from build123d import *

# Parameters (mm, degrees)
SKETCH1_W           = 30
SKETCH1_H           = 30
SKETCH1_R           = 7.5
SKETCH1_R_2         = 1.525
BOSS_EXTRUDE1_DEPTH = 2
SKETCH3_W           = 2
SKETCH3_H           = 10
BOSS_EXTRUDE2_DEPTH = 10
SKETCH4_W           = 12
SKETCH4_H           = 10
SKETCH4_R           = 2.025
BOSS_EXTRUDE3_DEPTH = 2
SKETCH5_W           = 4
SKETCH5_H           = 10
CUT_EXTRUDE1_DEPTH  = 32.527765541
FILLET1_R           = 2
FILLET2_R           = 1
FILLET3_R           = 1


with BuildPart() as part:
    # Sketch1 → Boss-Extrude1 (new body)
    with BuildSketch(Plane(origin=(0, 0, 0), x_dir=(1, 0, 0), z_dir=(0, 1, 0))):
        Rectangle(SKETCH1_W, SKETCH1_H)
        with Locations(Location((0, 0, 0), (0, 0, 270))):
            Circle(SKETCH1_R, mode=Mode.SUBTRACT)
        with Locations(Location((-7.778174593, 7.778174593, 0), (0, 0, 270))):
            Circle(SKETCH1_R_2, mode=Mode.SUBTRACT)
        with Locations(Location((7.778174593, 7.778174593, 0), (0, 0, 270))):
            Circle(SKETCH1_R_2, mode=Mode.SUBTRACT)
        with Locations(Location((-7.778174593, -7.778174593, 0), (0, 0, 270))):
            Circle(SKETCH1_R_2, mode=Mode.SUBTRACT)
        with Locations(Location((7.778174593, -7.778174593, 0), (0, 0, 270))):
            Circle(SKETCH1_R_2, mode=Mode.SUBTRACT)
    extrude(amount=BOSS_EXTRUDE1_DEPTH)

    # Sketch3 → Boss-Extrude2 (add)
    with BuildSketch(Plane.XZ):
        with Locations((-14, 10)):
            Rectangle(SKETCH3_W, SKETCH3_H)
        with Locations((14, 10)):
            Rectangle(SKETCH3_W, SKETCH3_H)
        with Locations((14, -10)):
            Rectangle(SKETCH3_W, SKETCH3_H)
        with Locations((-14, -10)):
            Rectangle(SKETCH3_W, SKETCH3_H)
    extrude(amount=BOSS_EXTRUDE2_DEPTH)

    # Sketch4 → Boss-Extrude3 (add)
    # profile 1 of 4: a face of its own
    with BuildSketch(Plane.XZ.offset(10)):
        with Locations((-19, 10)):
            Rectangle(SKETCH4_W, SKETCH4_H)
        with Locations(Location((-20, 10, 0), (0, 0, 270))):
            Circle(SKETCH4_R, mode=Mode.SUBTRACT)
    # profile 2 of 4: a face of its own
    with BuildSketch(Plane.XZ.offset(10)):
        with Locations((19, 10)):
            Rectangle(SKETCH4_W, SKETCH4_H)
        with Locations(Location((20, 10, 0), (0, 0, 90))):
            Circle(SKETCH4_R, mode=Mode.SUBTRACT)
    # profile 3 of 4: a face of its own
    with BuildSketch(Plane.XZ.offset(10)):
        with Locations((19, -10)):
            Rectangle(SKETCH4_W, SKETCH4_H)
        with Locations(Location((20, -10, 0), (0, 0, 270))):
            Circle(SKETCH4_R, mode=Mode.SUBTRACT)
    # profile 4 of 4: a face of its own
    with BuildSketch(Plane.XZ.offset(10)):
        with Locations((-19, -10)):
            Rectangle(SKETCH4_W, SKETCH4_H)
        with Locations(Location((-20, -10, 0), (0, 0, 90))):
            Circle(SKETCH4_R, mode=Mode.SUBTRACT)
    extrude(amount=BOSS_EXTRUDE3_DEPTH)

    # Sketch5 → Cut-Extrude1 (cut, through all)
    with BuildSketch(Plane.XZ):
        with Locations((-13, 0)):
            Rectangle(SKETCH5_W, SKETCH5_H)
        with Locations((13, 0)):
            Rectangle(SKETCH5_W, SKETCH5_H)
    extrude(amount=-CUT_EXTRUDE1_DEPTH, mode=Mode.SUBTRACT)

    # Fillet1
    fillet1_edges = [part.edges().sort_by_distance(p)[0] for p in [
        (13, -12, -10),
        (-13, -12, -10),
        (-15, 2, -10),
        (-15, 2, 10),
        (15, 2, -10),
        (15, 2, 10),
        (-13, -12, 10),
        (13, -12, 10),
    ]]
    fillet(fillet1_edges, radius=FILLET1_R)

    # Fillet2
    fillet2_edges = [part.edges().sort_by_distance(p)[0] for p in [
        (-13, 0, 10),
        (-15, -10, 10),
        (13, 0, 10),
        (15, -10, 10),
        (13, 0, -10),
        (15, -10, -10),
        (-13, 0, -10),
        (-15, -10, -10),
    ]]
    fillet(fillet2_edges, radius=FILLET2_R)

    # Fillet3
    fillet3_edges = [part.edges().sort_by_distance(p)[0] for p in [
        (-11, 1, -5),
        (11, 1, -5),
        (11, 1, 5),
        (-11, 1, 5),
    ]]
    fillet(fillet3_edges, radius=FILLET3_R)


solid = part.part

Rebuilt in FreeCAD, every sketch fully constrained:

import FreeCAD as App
import Part
import Sketcher
Q = App.Units.Quantity


def edges_at(feature, points):
    """Names of the edges that pass closest to the given points."""
    edges = feature.Shape.Edges
    near = lambda p: min(range(len(edges)), key=lambda i: edges[i].distToShape(Part.Vertex(*p))[0])
    return sorted({f"Edge{near(p) + 1}" for p in points})

doc = App.newDocument("Part")
params = doc.addObject("Spreadsheet::Sheet", "Params")
for row, (alias, value) in enumerate([
    ("sketch1_diameter", "15 mm"),
    ("sketch1_diameter2", "3.05 mm"),
    ("sketch1_width", "30 mm"),
    ("pad1_length", "2 mm"),
    ("sketch2_width", "2 mm"),
    ("sketch2_height", "10 mm"),
    ("pad2_length", "10 mm"),
    ("sketch3_diameter", "4.05 mm"),
    ("sketch3_width", "12 mm"),
    ("sketch3_height", "10 mm"),
    ("pad3_length", "2 mm"),
    ("sketch4_width", "4 mm"),
    ("sketch4_height", "10 mm"),
    ("fillet_radius", "2 mm"),
    ("fillet2_radius", "1 mm"),
    ("fillet3_radius", "1 mm"),
], start=1):
    params.set(f"A{row}", alias)
    params.set(f"B{row}", "=" + value)
    params.setAlias(f"B{row}", alias)

body = doc.addObject("PartDesign::Body", "Body")

# Sketch on XZ plane
sketch1 = doc.addObject("Sketcher::SketchObject", "Sketch")
body.addObject(sketch1)
sketch1.AttachmentSupport = (doc.XZ_Plane, [""])
sketch1.MapMode = "FlatFace"
sketch1.addGeometry([
    Part.LineSegment(App.Vector(-15, -15, 0), App.Vector(-15, 15, 0)),  # 0
    Part.LineSegment(App.Vector(-15, 15, 0), App.Vector(15, 15, 0)),  # 1
    Part.LineSegment(App.Vector(15, 15, 0), App.Vector(15, -15, 0)),  # 2
    Part.LineSegment(App.Vector(15, -15, 0), App.Vector(-15, -15, 0)),  # 3
    Part.Circle(App.Vector(-7.778175, 7.778175, 0), App.Vector(0, 0, 1), 1.525),  # 4
    Part.Circle(App.Vector(7.778175, 7.778175, 0), App.Vector(0, 0, 1), 1.525),  # 5
    Part.Circle(App.Vector(-7.778175, -7.778175, 0), App.Vector(0, 0, 1), 1.525),  # 6
    Part.Circle(App.Vector(0, 0, 0), App.Vector(0, 0, 1), 7.5),  # 7
    Part.Circle(App.Vector(7.778175, -7.778175, 0), App.Vector(0, 0, 1), 1.525),  # 8
], False)
sketch1.addConstraint([
    Sketcher.Constraint("Coincident", 0, 2, 1, 1),
    Sketcher.Constraint("Coincident", 1, 2, 2, 1),
    Sketcher.Constraint("Coincident", 2, 2, 3, 1),
    Sketcher.Constraint("Coincident", 3, 2, 0, 1),
    Sketcher.Constraint("Vertical", 0),
    Sketcher.Constraint("Horizontal", 1),
    Sketcher.Constraint("Vertical", 2),
    Sketcher.Constraint("Horizontal", 3),
    Sketcher.Constraint("Coincident", 7, 3, -1, 1),
    Sketcher.Constraint("Equal", 4, 5),
    Sketcher.Constraint("Equal", 5, 6),
    Sketcher.Constraint("Equal", 6, 8),
    Sketcher.Constraint("Symmetric", 5, 3, 6, 3, -1, 1),
    Sketcher.Constraint("Symmetric", 4, 3, 8, 3, -1, 1),
    Sketcher.Constraint("Symmetric", 0, 2, 2, 2, -1, 1),
    Sketcher.Constraint("Symmetric", 4, 3, 5, 3, -2),
    Sketcher.Constraint("Equal", 3, 0),
    Sketcher.Constraint("Diameter", 7, Q("15 mm")),
    Sketcher.Constraint("Diameter", 4, Q("3.05 mm")),
    Sketcher.Constraint("DistanceX", 1, 1, 1, 2, Q("30 mm")),
    Sketcher.Constraint("DistanceX", 4, 3, 5, 3, Q("15.556349 mm")),
    Sketcher.Constraint("DistanceY", 6, 3, 4, 3, Q("15.556349 mm")),
])
sketch1.setExpression("Constraints[17]", "Params.sketch1_diameter")
sketch1.setExpression("Constraints[18]", "Params.sketch1_diameter2")
sketch1.setExpression("Constraints[19]", "Params.sketch1_width")
pad1 = doc.addObject("PartDesign::Pad", "Pad")
body.addObject(pad1)
pad1.Profile = sketch1
pad1.setExpression("Length", "Params.pad1_length")
pad1.Reversed = True

# Sketch on XZ plane
sketch2 = doc.addObject("Sketcher::SketchObject", "Sketch001")
body.addObject(sketch2)
sketch2.AttachmentSupport = (doc.XZ_Plane, [""])
sketch2.MapMode = "FlatFace"
sketch2.addGeometry([
    Part.LineSegment(App.Vector(-15, 15, 0), App.Vector(-15, 5, 0)),  # 0
    Part.LineSegment(App.Vector(-15, 5, 0), App.Vector(-13, 5, 0)),  # 1
    Part.LineSegment(App.Vector(-13, 5, 0), App.Vector(-13, 15, 0)),  # 2
    Part.LineSegment(App.Vector(-13, 15, 0), App.Vector(-15, 15, 0)),  # 3
    Part.LineSegment(App.Vector(13, 15, 0), App.Vector(13, 5, 0)),  # 4
    Part.LineSegment(App.Vector(13, 5, 0), App.Vector(15, 5, 0)),  # 5
    Part.LineSegment(App.Vector(15, 5, 0), App.Vector(15, 15, 0)),  # 6
    Part.LineSegment(App.Vector(15, 15, 0), App.Vector(13, 15, 0)),  # 7
    Part.LineSegment(App.Vector(13, -5, 0), App.Vector(13, -15, 0)),  # 8
    Part.LineSegment(App.Vector(13, -15, 0), App.Vector(15, -15, 0)),  # 9
    Part.LineSegment(App.Vector(15, -15, 0), App.Vector(15, -5, 0)),  # 10
    Part.LineSegment(App.Vector(15, -5, 0), App.Vector(13, -5, 0)),  # 11
    Part.LineSegment(App.Vector(-15, -5, 0), App.Vector(-15, -15, 0)),  # 12
    Part.LineSegment(App.Vector(-15, -15, 0), App.Vector(-13, -15, 0)),  # 13
    Part.LineSegment(App.Vector(-13, -15, 0), App.Vector(-13, -5, 0)),  # 14
    Part.LineSegment(App.Vector(-13, -5, 0), App.Vector(-15, -5, 0)),  # 15
], False)
sketch2.addConstraint([
    Sketcher.Constraint("Coincident", 0, 2, 1, 1),
    Sketcher.Constraint("Coincident", 1, 2, 2, 1),
    Sketcher.Constraint("Coincident", 2, 2, 3, 1),
    Sketcher.Constraint("Coincident", 3, 2, 0, 1),
    Sketcher.Constraint("Coincident", 4, 2, 5, 1),
    Sketcher.Constraint("Coincident", 5, 2, 6, 1),
    Sketcher.Constraint("Coincident", 6, 2, 7, 1),
    Sketcher.Constraint("Coincident", 7, 2, 4, 1),
    Sketcher.Constraint("Coincident", 8, 2, 9, 1),
    Sketcher.Constraint("Coincident", 9, 2, 10, 1),
    Sketcher.Constraint("Coincident", 10, 2, 11, 1),
    Sketcher.Constraint("Coincident", 11, 2, 8, 1),
    Sketcher.Constraint("Coincident", 12, 2, 13, 1),
    Sketcher.Constraint("Coincident", 13, 2, 14, 1),
    Sketcher.Constraint("Coincident", 14, 2, 15, 1),
    Sketcher.Constraint("Coincident", 15, 2, 12, 1),
    Sketcher.Constraint("Vertical", 0),
    Sketcher.Constraint("Horizontal", 1),
    Sketcher.Constraint("Vertical", 2),
    Sketcher.Constraint("Horizontal", 3),
    Sketcher.Constraint("Vertical", 4),
    Sketcher.Constraint("Horizontal", 5),
    Sketcher.Constraint("Vertical", 6),
    Sketcher.Constraint("Horizontal", 7),
    Sketcher.Constraint("Vertical", 8),
    Sketcher.Constraint("Horizontal", 9),
    Sketcher.Constraint("Vertical", 10),
    Sketcher.Constraint("Horizontal", 11),
    Sketcher.Constraint("Vertical", 12),
    Sketcher.Constraint("Horizontal", 13),
    Sketcher.Constraint("Vertical", 14),
    Sketcher.Constraint("Horizontal", 15),
    Sketcher.Constraint("Symmetric", 2, 2, 8, 2, -1, 1),
    Sketcher.Constraint("Symmetric", 0, 2, 10, 2, -1, 1),
    Sketcher.Constraint("Symmetric", 6, 2, 12, 2, -1, 1),
    Sketcher.Constraint("Symmetric", 4, 2, 14, 2, -1, 1),
    Sketcher.Constraint("Symmetric", 1, 2, 4, 2, -2),
    Sketcher.Constraint("Symmetric", 3, 2, 6, 2, -2),
    Sketcher.Constraint("DistanceX", 1, 1, 1, 2, Q("2 mm")),
    Sketcher.Constraint("DistanceY", 0, 2, 0, 1, Q("10 mm")),
    Sketcher.Constraint("DistanceX", 0, 2, -1, 1, Q("15 mm")),
    Sketcher.Constraint("DistanceY", -1, 1, 0, 2, Q("5 mm")),
])
sketch2.setExpression("Constraints[38]", "Params.sketch2_width")
sketch2.setExpression("Constraints[39]", "Params.sketch2_height")
pad2 = doc.addObject("PartDesign::Pad", "Pad001")
body.addObject(pad2)
pad2.Profile = sketch2
pad2.setExpression("Length", "Params.pad2_length")

# Sketch on XZ plane
sketch3 = doc.addObject("Sketcher::SketchObject", "Sketch002")
body.addObject(sketch3)
sketch3.AttachmentSupport = (doc.XZ_Plane, [""])
sketch3.MapMode = "FlatFace"
sketch3.AttachmentOffset = App.Placement(App.Vector(0, 0, 10), App.Rotation())
sketch3.addGeometry([
    Part.LineSegment(App.Vector(-25, 15, 0), App.Vector(-25, 5, 0)),  # 0
    Part.LineSegment(App.Vector(-25, 5, 0), App.Vector(-13, 5, 0)),  # 1
    Part.LineSegment(App.Vector(-13, 5, 0), App.Vector(-13, 15, 0)),  # 2
    Part.LineSegment(App.Vector(-13, 15, 0), App.Vector(-25, 15, 0)),  # 3
    Part.Circle(App.Vector(-20, 10, 0), App.Vector(0, 0, 1), 2.025),  # 4
    Part.LineSegment(App.Vector(13, 15, 0), App.Vector(13, 5, 0)),  # 5
    Part.LineSegment(App.Vector(13, 5, 0), App.Vector(25, 5, 0)),  # 6
    Part.LineSegment(App.Vector(25, 5, 0), App.Vector(25, 15, 0)),  # 7
    Part.LineSegment(App.Vector(25, 15, 0), App.Vector(13, 15, 0)),  # 8
    Part.Circle(App.Vector(20, 10, 0), App.Vector(0, 0, 1), 2.025),  # 9
    Part.LineSegment(App.Vector(13, -5, 0), App.Vector(13, -15, 0)),  # 10
    Part.LineSegment(App.Vector(13, -15, 0), App.Vector(25, -15, 0)),  # 11
    Part.LineSegment(App.Vector(25, -15, 0), App.Vector(25, -5, 0)),  # 12
    Part.LineSegment(App.Vector(25, -5, 0), App.Vector(13, -5, 0)),  # 13
    Part.Circle(App.Vector(20, -10, 0), App.Vector(0, 0, 1), 2.025),  # 14
    Part.LineSegment(App.Vector(-25, -5, 0), App.Vector(-25, -15, 0)),  # 15
    Part.LineSegment(App.Vector(-25, -15, 0), App.Vector(-13, -15, 0)),  # 16
    Part.LineSegment(App.Vector(-13, -15, 0), App.Vector(-13, -5, 0)),  # 17
    Part.LineSegment(App.Vector(-13, -5, 0), App.Vector(-25, -5, 0)),  # 18
    Part.Circle(App.Vector(-20, -10, 0), App.Vector(0, 0, 1), 2.025),  # 19
], False)
sketch3.addConstraint([
    Sketcher.Constraint("Coincident", 0, 2, 1, 1),
    Sketcher.Constraint("Coincident", 1, 2, 2, 1),
    Sketcher.Constraint("Coincident", 2, 2, 3, 1),
    Sketcher.Constraint("Coincident", 3, 2, 0, 1),
    Sketcher.Constraint("Coincident", 5, 2, 6, 1),
    Sketcher.Constraint("Coincident", 6, 2, 7, 1),
    Sketcher.Constraint("Coincident", 7, 2, 8, 1),
    Sketcher.Constraint("Coincident", 8, 2, 5, 1),
    Sketcher.Constraint("Coincident", 10, 2, 11, 1),
    Sketcher.Constraint("Coincident", 11, 2, 12, 1),
    Sketcher.Constraint("Coincident", 12, 2, 13, 1),
    Sketcher.Constraint("Coincident", 13, 2, 10, 1),
    Sketcher.Constraint("Coincident", 15, 2, 16, 1),
    Sketcher.Constraint("Coincident", 16, 2, 17, 1),
    Sketcher.Constraint("Coincident", 17, 2, 18, 1),
    Sketcher.Constraint("Coincident", 18, 2, 15, 1),
    Sketcher.Constraint("Vertical", 0),
    Sketcher.Constraint("Horizontal", 1),
    Sketcher.Constraint("Vertical", 2),
    Sketcher.Constraint("Horizontal", 3),
    Sketcher.Constraint("Vertical", 5),
    Sketcher.Constraint("Horizontal", 6),
    Sketcher.Constraint("Vertical", 7),
    Sketcher.Constraint("Horizontal", 8),
    Sketcher.Constraint("Vertical", 10),
    Sketcher.Constraint("Horizontal", 11),
    Sketcher.Constraint("Vertical", 12),
    Sketcher.Constraint("Horizontal", 13),
    Sketcher.Constraint("Vertical", 15),
    Sketcher.Constraint("Horizontal", 16),
    Sketcher.Constraint("Vertical", 17),
    Sketcher.Constraint("Horizontal", 18),
    Sketcher.Constraint("Equal", 4, 9),
    Sketcher.Constraint("Equal", 9, 14),
    Sketcher.Constraint("Equal", 14, 19),
    Sketcher.Constraint("Symmetric", 4, 3, 14, 3, -1, 1),
    Sketcher.Constraint("Symmetric", 9, 3, 19, 3, -1, 1),
    Sketcher.Constraint("Symmetric", 2, 2, 10, 2, -1, 1),
    Sketcher.Constraint("Symmetric", 0, 2, 12, 2, -1, 1),
    Sketcher.Constraint("Symmetric", 7, 2, 15, 2, -1, 1),
    Sketcher.Constraint("Symmetric", 5, 2, 17, 2, -1, 1),
    Sketcher.Constraint("Symmetric", 4, 3, 9, 3, -2),
    Sketcher.Constraint("Symmetric", 1, 2, 5, 2, -2),
    Sketcher.Constraint("Symmetric", 3, 2, 7, 2, -2),
    Sketcher.Constraint("Diameter", 4, Q("4.05 mm")),
    Sketcher.Constraint("DistanceX", 1, 1, 1, 2, Q("12 mm")),
    Sketcher.Constraint("DistanceY", 0, 2, 0, 1, Q("10 mm")),
    Sketcher.Constraint("DistanceX", 4, 3, -1, 1, Q("20 mm")),
    Sketcher.Constraint("DistanceY", -1, 1, 4, 3, Q("10 mm")),
    Sketcher.Constraint("DistanceX", 0, 2, -1, 1, Q("25 mm")),
    Sketcher.Constraint("DistanceY", -1, 1, 0, 2, Q("5 mm")),
])
sketch3.setExpression("Constraints[44]", "Params.sketch3_diameter")
sketch3.setExpression("Constraints[45]", "Params.sketch3_width")
sketch3.setExpression("Constraints[46]", "Params.sketch3_height")
pad3 = doc.addObject("PartDesign::Pad", "Pad002")
body.addObject(pad3)
pad3.Profile = sketch3
pad3.setExpression("Length", "Params.pad3_length")

# Sketch on XZ plane
sketch4 = doc.addObject("Sketcher::SketchObject", "Sketch003")
body.addObject(sketch4)
sketch4.AttachmentSupport = (doc.XZ_Plane, [""])
sketch4.MapMode = "FlatFace"
sketch4.addGeometry([
    Part.LineSegment(App.Vector(-15, 5, 0), App.Vector(-15, -5, 0)),  # 0
    Part.LineSegment(App.Vector(-15, -5, 0), App.Vector(-11, -5, 0)),  # 1
    Part.LineSegment(App.Vector(-11, -5, 0), App.Vector(-11, 5, 0)),  # 2
    Part.LineSegment(App.Vector(-11, 5, 0), App.Vector(-15, 5, 0)),  # 3
    Part.LineSegment(App.Vector(11, 5, 0), App.Vector(11, -5, 0)),  # 4
    Part.LineSegment(App.Vector(11, -5, 0), App.Vector(15, -5, 0)),  # 5
    Part.LineSegment(App.Vector(15, -5, 0), App.Vector(15, 5, 0)),  # 6
    Part.LineSegment(App.Vector(15, 5, 0), App.Vector(11, 5, 0)),  # 7
], False)
sketch4.addConstraint([
    Sketcher.Constraint("Coincident", 0, 2, 1, 1),
    Sketcher.Constraint("Coincident", 1, 2, 2, 1),
    Sketcher.Constraint("Coincident", 2, 2, 3, 1),
    Sketcher.Constraint("Coincident", 3, 2, 0, 1),
    Sketcher.Constraint("Coincident", 4, 2, 5, 1),
    Sketcher.Constraint("Coincident", 5, 2, 6, 1),
    Sketcher.Constraint("Coincident", 6, 2, 7, 1),
    Sketcher.Constraint("Coincident", 7, 2, 4, 1),
    Sketcher.Constraint("Vertical", 0),
    Sketcher.Constraint("Horizontal", 1),
    Sketcher.Constraint("Vertical", 2),
    Sketcher.Constraint("Horizontal", 3),
    Sketcher.Constraint("Vertical", 4),
    Sketcher.Constraint("Horizontal", 5),
    Sketcher.Constraint("Vertical", 6),
    Sketcher.Constraint("Horizontal", 7),
    Sketcher.Constraint("Symmetric", 2, 2, 4, 2, -1, 1),
    Sketcher.Constraint("Symmetric", 0, 2, 6, 2, -1, 1),
    Sketcher.Constraint("Horizontal", 1, 2, 4, 2),
    Sketcher.Constraint("DistanceX", 1, 1, 1, 2, Q("4 mm")),
    Sketcher.Constraint("DistanceY", 0, 2, 0, 1, Q("10 mm")),
    Sketcher.Constraint("DistanceX", 0, 2, -1, 1, Q("15 mm")),
])
sketch4.setExpression("Constraints[19]", "Params.sketch4_width")
sketch4.setExpression("Constraints[20]", "Params.sketch4_height")
pocket1 = doc.addObject("PartDesign::Pocket", "Pocket")
body.addObject(pocket1)
pocket1.Profile = sketch4
pocket1.Type = "ThroughAll"
doc.recompute()

fillet = doc.addObject("PartDesign::Fillet", "Fillet")
body.addObject(fillet)
fillet.Base = (pocket1, edges_at(pocket1, [
    (13, -12, -10),
    (-13, -12, -10),
    (-15, 2, -10),
    (-15, 2, 10),
    (15, 2, -10),
    (15, 2, 10),
    (-13, -12, 10),
    (13, -12, 10),
]))
fillet.setExpression("Radius", "Params.fillet_radius")
doc.recompute()

fillet2 = doc.addObject("PartDesign::Fillet", "Fillet001")
body.addObject(fillet2)
fillet2.Base = (fillet, edges_at(fillet, [
    (-13, 0, 10),
    (-15, -10, 10),
    (13, 0, 10),
    (15, -10, 10),
    (13, 0, -10),
    (15, -10, -10),
    (-13, 0, -10),
    (-15, -10, -10),
]))
fillet2.setExpression("Radius", "Params.fillet2_radius")
doc.recompute()

fillet3 = doc.addObject("PartDesign::Fillet", "Fillet002")
body.addObject(fillet3)
fillet3.Base = (fillet2, edges_at(fillet2, [
    (-11, 1, -5),
    (11, 1, -5),
    (11, 1, 5),
    (-11, 1, 5),
]))
fillet3.setExpression("Radius", "Params.fillet3_radius")

doc.recompute()
